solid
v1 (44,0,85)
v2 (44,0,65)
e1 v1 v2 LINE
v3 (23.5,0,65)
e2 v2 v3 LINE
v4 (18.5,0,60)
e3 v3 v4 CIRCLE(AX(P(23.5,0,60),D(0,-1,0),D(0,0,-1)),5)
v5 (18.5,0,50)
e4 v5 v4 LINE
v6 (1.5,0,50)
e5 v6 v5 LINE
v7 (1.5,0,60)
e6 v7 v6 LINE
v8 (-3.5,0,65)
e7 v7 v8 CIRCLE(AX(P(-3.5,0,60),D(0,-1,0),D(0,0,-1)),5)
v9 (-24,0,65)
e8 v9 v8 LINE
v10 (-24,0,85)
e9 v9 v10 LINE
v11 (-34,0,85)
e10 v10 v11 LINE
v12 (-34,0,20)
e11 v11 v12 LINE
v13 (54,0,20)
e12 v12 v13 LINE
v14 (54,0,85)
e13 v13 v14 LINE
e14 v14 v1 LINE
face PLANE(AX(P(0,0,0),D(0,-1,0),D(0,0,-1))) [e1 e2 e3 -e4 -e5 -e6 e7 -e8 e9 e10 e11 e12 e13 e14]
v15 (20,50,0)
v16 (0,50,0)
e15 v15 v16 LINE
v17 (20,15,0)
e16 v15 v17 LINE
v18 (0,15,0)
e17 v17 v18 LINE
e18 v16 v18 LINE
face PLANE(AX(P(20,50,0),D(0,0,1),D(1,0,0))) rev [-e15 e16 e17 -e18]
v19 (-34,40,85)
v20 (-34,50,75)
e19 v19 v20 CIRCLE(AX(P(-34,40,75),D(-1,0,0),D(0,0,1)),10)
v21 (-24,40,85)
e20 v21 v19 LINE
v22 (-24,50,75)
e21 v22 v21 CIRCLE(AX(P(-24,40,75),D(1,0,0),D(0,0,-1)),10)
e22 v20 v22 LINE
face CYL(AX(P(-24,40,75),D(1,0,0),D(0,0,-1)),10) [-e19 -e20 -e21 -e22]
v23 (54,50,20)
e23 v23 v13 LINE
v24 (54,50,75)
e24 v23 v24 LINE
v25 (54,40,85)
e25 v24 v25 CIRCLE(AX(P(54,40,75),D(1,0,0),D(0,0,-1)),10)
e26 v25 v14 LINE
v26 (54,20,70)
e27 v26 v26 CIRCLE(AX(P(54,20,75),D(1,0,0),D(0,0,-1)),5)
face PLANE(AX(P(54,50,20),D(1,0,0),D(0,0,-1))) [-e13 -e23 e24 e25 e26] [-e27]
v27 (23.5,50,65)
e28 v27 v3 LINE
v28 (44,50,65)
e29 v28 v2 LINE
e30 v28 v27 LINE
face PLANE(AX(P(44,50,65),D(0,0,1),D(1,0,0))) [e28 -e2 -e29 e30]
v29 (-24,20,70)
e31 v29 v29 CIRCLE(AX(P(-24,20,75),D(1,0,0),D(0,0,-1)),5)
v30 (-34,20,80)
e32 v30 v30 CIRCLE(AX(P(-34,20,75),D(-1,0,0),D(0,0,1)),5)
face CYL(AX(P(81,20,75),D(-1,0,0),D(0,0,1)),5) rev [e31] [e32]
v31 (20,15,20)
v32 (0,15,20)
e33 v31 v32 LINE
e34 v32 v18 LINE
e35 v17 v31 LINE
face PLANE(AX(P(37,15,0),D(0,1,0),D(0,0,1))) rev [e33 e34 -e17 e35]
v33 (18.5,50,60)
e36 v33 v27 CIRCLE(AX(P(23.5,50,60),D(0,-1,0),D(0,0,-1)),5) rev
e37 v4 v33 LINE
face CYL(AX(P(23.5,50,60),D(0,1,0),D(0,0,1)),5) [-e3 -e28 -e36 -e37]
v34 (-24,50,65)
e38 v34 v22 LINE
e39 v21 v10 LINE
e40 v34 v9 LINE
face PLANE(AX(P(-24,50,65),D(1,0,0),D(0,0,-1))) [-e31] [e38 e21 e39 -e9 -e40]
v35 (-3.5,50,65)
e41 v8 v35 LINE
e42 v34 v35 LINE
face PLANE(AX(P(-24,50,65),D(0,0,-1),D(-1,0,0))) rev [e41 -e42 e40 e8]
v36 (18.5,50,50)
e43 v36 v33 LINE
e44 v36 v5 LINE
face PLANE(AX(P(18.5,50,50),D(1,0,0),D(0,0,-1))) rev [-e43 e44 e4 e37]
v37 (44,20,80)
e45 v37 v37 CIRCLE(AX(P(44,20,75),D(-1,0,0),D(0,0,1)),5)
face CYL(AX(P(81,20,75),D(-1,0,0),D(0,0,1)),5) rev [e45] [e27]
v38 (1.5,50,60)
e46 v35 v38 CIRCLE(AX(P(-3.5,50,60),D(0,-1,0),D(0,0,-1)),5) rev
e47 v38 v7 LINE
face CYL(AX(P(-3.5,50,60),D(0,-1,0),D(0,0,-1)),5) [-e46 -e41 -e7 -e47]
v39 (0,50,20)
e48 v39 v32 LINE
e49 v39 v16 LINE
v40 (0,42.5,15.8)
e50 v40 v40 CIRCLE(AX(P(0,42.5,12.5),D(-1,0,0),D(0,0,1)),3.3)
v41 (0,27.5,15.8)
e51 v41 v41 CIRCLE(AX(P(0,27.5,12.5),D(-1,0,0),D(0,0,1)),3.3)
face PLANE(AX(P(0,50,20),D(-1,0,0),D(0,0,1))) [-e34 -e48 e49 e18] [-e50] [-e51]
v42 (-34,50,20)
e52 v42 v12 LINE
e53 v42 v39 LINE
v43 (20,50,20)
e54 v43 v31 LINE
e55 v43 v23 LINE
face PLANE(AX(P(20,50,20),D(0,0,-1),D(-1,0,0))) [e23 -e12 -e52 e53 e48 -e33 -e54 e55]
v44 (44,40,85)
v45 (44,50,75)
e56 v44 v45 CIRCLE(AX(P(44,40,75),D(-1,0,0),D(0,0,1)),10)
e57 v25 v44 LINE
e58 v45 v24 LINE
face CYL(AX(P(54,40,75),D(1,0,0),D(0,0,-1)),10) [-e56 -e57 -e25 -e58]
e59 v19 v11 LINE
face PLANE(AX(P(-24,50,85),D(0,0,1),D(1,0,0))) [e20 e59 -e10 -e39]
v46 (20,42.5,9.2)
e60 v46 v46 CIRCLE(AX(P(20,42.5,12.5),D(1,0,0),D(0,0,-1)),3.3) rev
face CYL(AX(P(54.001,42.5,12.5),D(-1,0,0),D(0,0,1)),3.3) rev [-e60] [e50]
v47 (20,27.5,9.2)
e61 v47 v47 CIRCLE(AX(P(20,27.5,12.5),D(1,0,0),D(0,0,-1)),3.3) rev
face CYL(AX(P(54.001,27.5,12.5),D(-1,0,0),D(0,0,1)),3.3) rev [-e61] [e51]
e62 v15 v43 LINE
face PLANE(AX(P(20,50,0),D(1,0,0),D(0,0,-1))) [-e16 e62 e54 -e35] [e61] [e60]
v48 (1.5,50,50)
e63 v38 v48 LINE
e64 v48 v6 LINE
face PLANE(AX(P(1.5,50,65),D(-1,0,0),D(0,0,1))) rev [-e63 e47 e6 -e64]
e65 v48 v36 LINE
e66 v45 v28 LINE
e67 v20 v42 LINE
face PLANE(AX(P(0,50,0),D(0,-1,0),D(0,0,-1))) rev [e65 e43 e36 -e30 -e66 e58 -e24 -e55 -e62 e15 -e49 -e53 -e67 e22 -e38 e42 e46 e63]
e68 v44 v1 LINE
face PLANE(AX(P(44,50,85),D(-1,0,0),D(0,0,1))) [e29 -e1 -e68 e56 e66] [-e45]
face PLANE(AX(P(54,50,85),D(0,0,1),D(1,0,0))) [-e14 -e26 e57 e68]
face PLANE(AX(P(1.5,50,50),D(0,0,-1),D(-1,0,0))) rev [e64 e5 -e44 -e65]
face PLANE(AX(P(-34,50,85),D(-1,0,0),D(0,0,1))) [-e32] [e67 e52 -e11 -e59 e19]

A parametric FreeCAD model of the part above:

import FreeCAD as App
import Part
import Sketcher
Q = App.Units.Quantity


def edges_at(feature, points):
    """Names of the edges that pass closest to the given points."""
    edges = feature.Shape.Edges
    near = lambda p: min(range(len(edges)), key=lambda i: edges[i].distToShape(Part.Vertex(*p))[0])
    return sorted({f"Edge{near(p) + 1}" for p in points})


def add_polygon(sketch, points):
    """Adds a closed chain of lines whose ends are joined by coincident constraints."""
    first, n = sketch.GeometryCount, len(points)
    for a, b in zip(points, points[1:] + points[:1]):
        sketch.addGeometry(Part.LineSegment(App.Vector(*a, 0), App.Vector(*b, 0)), False)
    for i in range(n):
        sketch.addConstraint(Sketcher.Constraint("Coincident", first + i, 2, first + (i + 1) % n, 1))

doc = App.newDocument("Part")
body = doc.addObject("PartDesign::Body", "Body")

# Sketch on XZ plane
sketch1 = body.newObject("Sketcher::SketchObject", "Sketch")
sketch1.AttachmentSupport = (doc.getObject("XZ_Plane"), [""])
sketch1.MapMode = "FlatFace"
add_polygon(sketch1, [(20, 0), (0, 0), (0, 20), (-34, 20), (-34, 85), (-24, 85), (-24, 65), (2, 65), (2, 50), (18, 50), (18, 65), (44, 65), (44, 85), (54, 85), (54, 20), (20, 20)])  # lines 0-15
sketch1.addConstraint(Sketcher.Constraint("Horizontal", 0))
sketch1.addConstraint(Sketcher.Constraint("Vertical", 1))
sketch1.addConstraint(Sketcher.Constraint("Horizontal", 2))
sketch1.addConstraint(Sketcher.Constraint("Vertical", 3))
sketch1.addConstraint(Sketcher.Constraint("Horizontal", 4))
sketch1.addConstraint(Sketcher.Constraint("Vertical", 5))
sketch1.addConstraint(Sketcher.Constraint("Horizontal", 6))
sketch1.addConstraint(Sketcher.Constraint("Vertical", 7))
sketch1.addConstraint(Sketcher.Constraint("Horizontal", 8))
sketch1.addConstraint(Sketcher.Constraint("Vertical", 9))
sketch1.addConstraint(Sketcher.Constraint("Horizontal", 10))
sketch1.addConstraint(Sketcher.Constraint("Vertical", 11))
sketch1.addConstraint(Sketcher.Constraint("Horizontal", 12))
sketch1.addConstraint(Sketcher.Constraint("Vertical", 13))
sketch1.addConstraint(Sketcher.Constraint("Horizontal", 14))
sketch1.addConstraint(Sketcher.Constraint("Vertical", 15))
sketch1.addConstraint(Sketcher.Constraint("Coincident", 0, 2, -1, 1))
sketch1.addConstraint(Sketcher.Constraint("Horizontal", 6, 2, 9, 2))
sketch1.addConstraint(Sketcher.Constraint("Horizontal", 4, 2, 11, 2))
sketch1.addConstraint(Sketcher.Constraint("Horizontal", 2, 2, 13, 2))
sketch1.addConstraint(Sketcher.Constraint("Equal", 6, 10))
sketch1.addConstraint(Sketcher.Constraint("Equal", 4, 12))
sketch1.addConstraint(Sketcher.Constraint("Equal", 2, 14))
sketch1.addConstraint(Sketcher.Constraint("Equal", 0, 1))
sketch1.addConstraint(Sketcher.Constraint("Equal", 1, 5))
sketch1.addConstraint(Sketcher.Constraint("DistanceX", 0, 2, 0, 1, Q("20 mm")))
sketch1.addConstraint(Sketcher.Constraint("DistanceX", 2, 2, 2, 1, Q("34 mm")))
sketch1.addConstraint(Sketcher.Constraint("DistanceX", 4, 1, 4, 2, Q("10 mm")))
sketch1.addConstraint(Sketcher.Constraint("DistanceX", 8, 1, 8, 2, Q("17 mm")))
sketch1.addConstraint(Sketcher.Constraint("DistanceY", 3, 1, 3, 2, Q("65 mm")))
sketch1.addConstraint(Sketcher.Constraint("DistanceY", 7, 2, 7, 1, Q("15 mm")))
pad1 = body.newObject("PartDesign::Pad", "Pad")
pad1.Profile = sketch1
pad1.Length = 50
pad1.Reversed = True
doc.recompute()

fillet = body.newObject("PartDesign::Fillet", "Fillet")
fillet.Base = (pad1, edges_at(pad1, [(-29, 50, 85)]))
fillet.Radius = 10
doc.recompute()

fillet2 = body.newObject("PartDesign::Fillet", "Fillet001")
fillet2.Base = (fillet, edges_at(fillet, [(49, 50, 85)]))
fillet2.Radius = 10
doc.recompute()

fillet3 = body.newObject("PartDesign::Fillet", "Fillet002")
fillet3.Base = (fillet2, edges_at(fillet2, [(1.5, 25, 65)]))
fillet3.Radius = 5
doc.recompute()

fillet4 = body.newObject("PartDesign::Fillet", "Fillet003")
fillet4.Base = (fillet3, edges_at(fillet3, [(18.5, 25, 65)]))
fillet4.Radius = 5

# Sketch on YZ plane
sketch2 = body.newObject("Sketcher::SketchObject", "Sketch001")
sketch2.AttachmentSupport = (doc.getObject("YZ_Plane"), [""])
sketch2.MapMode = "FlatFace"
add_polygon(sketch2, [(15, 0), (0, 0), (0, 20), (15, 20)])  # lines 0-3
sketch2.addConstraint(Sketcher.Constraint("Horizontal", 0))
sketch2.addConstraint(Sketcher.Constraint("Vertical", 1))
sketch2.addConstraint(Sketcher.Constraint("Horizontal", 2))
sketch2.addConstraint(Sketcher.Constraint("Vertical", 3))
sketch2.addConstraint(Sketcher.Constraint("Coincident", 0, 2, -1, 1))
sketch2.addConstraint(Sketcher.Constraint("DistanceX", 0, 2, 0, 1, Q("15 mm")))
sketch2.addConstraint(Sketcher.Constraint("DistanceY", 1, 1, 1, 2, Q("20 mm")))
pocket1 = body.newObject("PartDesign::Pocket", "Pocket")
pocket1.Profile = sketch2
pocket1.Length = 37
pocket1.Reversed = True

# Sketch on YZ plane
sketch3 = body.newObject("Sketcher::SketchObject", "Sketch002")
sketch3.AttachmentSupport = (doc.getObject("YZ_Plane"), [""])
sketch3.MapMode = "FlatFace"
sketch3.AttachmentOffset = App.Placement(App.Vector(0, 0, -34), App.Rotation())
sketch3.addGeometry(Part.Circle(App.Vector(20, 75, 0), App.Vector(0, 0, 1), 5), False)
sketch3.addConstraint(Sketcher.Constraint("Diameter", 0, Q("10 mm")))
sketch3.addConstraint(Sketcher.Constraint("DistanceX", -1, 1, 0, 3, Q("20 mm")))
sketch3.addConstraint(Sketcher.Constraint("DistanceY", -1, 1, 0, 3, Q("75 mm")))
pocket2 = body.newObject("PartDesign::Pocket", "Pocket001")
pocket2.Profile = sketch3
pocket2.Length = 115
pocket2.Reversed = True

# Sketch on YZ plane
sketch4 = body.newObject("Sketcher::SketchObject", "Sketch003")
sketch4.AttachmentSupport = (doc.getObject("YZ_Plane"), [""])
sketch4.MapMode = "FlatFace"
sketch4.addGeometry(Part.Circle(App.Vector(42.5, 12.5, 0), App.Vector(0, 0, 1), 3.3), False)
sketch4.addConstraint(Sketcher.Constraint("Diameter", 0, Q("6.6 mm")))
sketch4.addConstraint(Sketcher.Constraint("DistanceX", -1, 1, 0, 3, Q("42.5 mm")))
sketch4.addConstraint(Sketcher.Constraint("DistanceY", -1, 1, 0, 3, Q("12.5 mm")))
pocket3 = body.newObject("PartDesign::Pocket", "Pocket002")
pocket3.Profile = sketch4
pocket3.Type = "UpToFirst"
pocket3.Reversed = True

# Sketch on YZ plane
sketch5 = body.newObject("Sketcher::SketchObject", "Sketch004")
sketch5.AttachmentSupport = (doc.getObject("YZ_Plane"), [""])
sketch5.MapMode = "FlatFace"
sketch5.addGeometry(Part.Circle(App.Vector(27.5, 12.5, 0), App.Vector(0, 0, 1), 3.3), False)
sketch5.addConstraint(Sketcher.Constraint("Diameter", 0, Q("6.6 mm")))
sketch5.addConstraint(Sketcher.Constraint("DistanceX", -1, 1, 0, 3, Q("27.5 mm")))
sketch5.addConstraint(Sketcher.Constraint("DistanceY", -1, 1, 0, 3, Q("12.5 mm")))
pocket4 = body.newObject("PartDesign::Pocket", "Pocket003")
pocket4.Profile = sketch5
pocket4.Type = "UpToFirst"
pocket4.Reversed = True

doc.recompute()
